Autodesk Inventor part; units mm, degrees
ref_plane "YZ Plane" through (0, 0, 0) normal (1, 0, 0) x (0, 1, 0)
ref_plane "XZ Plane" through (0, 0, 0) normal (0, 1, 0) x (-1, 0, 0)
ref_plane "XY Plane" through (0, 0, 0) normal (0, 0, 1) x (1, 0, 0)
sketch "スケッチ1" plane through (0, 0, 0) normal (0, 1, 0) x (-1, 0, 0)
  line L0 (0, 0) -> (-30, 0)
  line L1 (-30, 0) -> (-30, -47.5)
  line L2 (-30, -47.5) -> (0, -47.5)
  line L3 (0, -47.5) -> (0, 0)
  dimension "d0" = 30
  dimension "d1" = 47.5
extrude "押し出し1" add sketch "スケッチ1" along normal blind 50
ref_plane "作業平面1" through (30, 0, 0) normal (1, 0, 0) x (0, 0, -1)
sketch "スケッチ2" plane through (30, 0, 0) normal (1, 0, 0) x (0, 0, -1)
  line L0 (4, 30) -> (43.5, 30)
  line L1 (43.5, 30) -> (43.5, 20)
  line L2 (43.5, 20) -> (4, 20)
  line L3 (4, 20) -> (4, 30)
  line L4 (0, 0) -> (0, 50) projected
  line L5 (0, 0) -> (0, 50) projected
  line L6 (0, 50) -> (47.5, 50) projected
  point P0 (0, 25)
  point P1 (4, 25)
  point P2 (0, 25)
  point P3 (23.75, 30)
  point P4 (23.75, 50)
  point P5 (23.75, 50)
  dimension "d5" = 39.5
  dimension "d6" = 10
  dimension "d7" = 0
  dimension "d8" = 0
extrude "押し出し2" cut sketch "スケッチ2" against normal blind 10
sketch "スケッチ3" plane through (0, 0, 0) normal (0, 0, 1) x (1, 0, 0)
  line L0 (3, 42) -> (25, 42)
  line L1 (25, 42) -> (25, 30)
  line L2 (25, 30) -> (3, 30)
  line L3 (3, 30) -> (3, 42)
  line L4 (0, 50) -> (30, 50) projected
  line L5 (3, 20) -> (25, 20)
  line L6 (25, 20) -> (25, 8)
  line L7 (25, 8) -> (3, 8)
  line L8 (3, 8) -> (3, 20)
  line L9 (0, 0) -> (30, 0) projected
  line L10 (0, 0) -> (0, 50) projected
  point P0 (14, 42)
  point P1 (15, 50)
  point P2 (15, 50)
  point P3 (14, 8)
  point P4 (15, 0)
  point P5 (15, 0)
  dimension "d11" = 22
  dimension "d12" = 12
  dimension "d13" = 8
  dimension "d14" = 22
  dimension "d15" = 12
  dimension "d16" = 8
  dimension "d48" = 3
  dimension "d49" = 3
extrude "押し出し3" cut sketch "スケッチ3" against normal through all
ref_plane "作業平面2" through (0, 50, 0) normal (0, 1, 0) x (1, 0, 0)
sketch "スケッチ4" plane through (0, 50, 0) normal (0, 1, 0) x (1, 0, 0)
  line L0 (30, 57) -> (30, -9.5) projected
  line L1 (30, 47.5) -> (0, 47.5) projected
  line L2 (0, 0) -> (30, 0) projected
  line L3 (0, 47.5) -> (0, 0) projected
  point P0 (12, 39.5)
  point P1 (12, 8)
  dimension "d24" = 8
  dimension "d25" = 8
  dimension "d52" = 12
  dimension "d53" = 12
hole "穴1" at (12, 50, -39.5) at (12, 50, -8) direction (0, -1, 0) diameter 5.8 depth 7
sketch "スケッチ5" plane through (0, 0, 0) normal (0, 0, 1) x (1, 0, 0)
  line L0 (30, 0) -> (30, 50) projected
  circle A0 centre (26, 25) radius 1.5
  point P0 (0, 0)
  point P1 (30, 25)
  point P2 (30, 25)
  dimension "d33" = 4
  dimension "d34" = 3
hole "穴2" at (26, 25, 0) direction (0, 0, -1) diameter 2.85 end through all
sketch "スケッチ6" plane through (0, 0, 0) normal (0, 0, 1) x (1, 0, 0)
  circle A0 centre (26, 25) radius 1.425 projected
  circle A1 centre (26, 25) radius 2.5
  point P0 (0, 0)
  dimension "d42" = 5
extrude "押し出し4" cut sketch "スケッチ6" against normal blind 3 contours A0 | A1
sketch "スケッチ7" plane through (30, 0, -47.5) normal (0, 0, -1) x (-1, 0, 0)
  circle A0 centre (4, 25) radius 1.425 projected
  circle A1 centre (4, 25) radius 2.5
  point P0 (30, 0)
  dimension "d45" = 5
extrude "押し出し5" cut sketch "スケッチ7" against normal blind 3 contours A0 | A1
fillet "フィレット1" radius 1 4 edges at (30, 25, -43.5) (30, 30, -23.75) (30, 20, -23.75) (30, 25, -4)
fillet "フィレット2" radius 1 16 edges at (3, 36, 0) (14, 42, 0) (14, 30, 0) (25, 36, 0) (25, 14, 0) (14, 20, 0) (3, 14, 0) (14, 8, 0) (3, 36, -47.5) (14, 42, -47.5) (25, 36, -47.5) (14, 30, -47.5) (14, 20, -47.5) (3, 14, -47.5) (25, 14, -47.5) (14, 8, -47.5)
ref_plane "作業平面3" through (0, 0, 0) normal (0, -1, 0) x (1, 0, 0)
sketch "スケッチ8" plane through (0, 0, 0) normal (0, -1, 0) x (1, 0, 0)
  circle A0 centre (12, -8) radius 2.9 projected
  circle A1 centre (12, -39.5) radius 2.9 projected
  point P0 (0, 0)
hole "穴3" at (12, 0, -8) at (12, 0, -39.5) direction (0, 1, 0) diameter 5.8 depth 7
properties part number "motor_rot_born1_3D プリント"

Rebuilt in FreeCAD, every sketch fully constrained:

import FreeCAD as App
import Part
import Sketcher
from FreeCAD import Vector
Q = App.Units.Quantity


def edges_at(feature, points):
    """Names of the edges that pass closest to the given points."""
    edges = feature.Shape.Edges
    near = lambda p: min(range(len(edges)), key=lambda i: edges[i].distToShape(Part.Vertex(*p))[0])
    return sorted({f"Edge{near(p) + 1}" for p in points})


def add_polygon(sketch, points):
    """Adds a closed chain of lines whose ends are joined by coincident constraints."""
    first, n = sketch.GeometryCount, len(points)
    for a, b in zip(points, points[1:] + points[:1]):
        sketch.addGeometry(Part.LineSegment(App.Vector(*a, 0), App.Vector(*b, 0)), False)
    for i in range(n):
        sketch.addConstraint(Sketcher.Constraint("Coincident", first + i, 2, first + (i + 1) % n, 1))

doc = App.newDocument("Part")
params = doc.addObject("Spreadsheet::Sheet", "Params")
for row, (alias, value) in enumerate([
    ("sketch1_width", "30 mm"),
    ("sketch1_height", "47.5 mm"),
    ("pad1_length", "50 mm"),
    ("sketch2_width", "10 mm"),
    ("sketch2_height", "39.5 mm"),
    ("pocket1_length", "10 mm"),
    ("sketch3_width", "22 mm"),
    ("sketch3_height", "12 mm"),
    ("sketch4_diameter", "5.8 mm"),
    ("hole_diameter", "5.8 mm"),
    ("hole_depth", "7 mm"),
    ("sketch5_diameter", "2.85 mm"),
    ("hole2_diameter", "2.85 mm"),
    ("sketch6_diameter", "5 mm"),
    ("pocket3_length", "3 mm"),
    ("sketch7_diameter", "5 mm"),
    ("pocket4_length", "3 mm"),
    ("fillet_radius", "1 mm"),
    ("fillet2_radius", "1 mm"),
    ("sketch8_diameter", "5.8 mm"),
    ("hole3_diameter", "5.8 mm"),
    ("hole3_depth", "7 mm"),
], start=1):
    params.set(f"A{row}", alias)
    params.set(f"B{row}", "=" + value)
    params.setAlias(f"B{row}", alias)

body = doc.addObject("PartDesign::Body", "Body")

# Sketch on XZ plane
sketch1 = doc.addObject("Sketcher::SketchObject", "Sketch")
body.addObject(sketch1)
sketch1.AttachmentSupport = (doc.XZ_Plane, [""])
sketch1.MapMode = "FlatFace"
add_polygon(sketch1, [(0, -48), (0, 0), (30, 0), (30, -48)])  # lines 0-3
sketch1.addConstraint(Sketcher.Constraint("Vertical", 0))
sketch1.addConstraint(Sketcher.Constraint("Horizontal", 1))
sketch1.addConstraint(Sketcher.Constraint("Vertical", 2))
sketch1.addConstraint(Sketcher.Constraint("Horizontal", 3))
sketch1.addConstraint(Sketcher.Constraint("Coincident", 0, 2, -1, 1))
sketch1.addConstraint(Sketcher.Constraint("DistanceX", 1, 1, 1, 2, Q("30 mm")))
sketch1.addConstraint(Sketcher.Constraint("DistanceY", 0, 1, 0, 2, Q("47.5 mm")))
sketch1.setExpression("Constraints[9]", "Params.sketch1_width")
sketch1.setExpression("Constraints[10]", "Params.sketch1_height")
pad1 = doc.addObject("PartDesign::Pad", "Pad")
body.addObject(pad1)
pad1.Profile = sketch1
pad1.setExpression("Length", "Params.pad1_length")
pad1.Reversed = True

# Sketch on YZ plane
sketch2 = doc.addObject("Sketcher::SketchObject", "Sketch001")
body.addObject(sketch2)
sketch2.AttachmentSupport = (doc.YZ_Plane, [""])
sketch2.MapMode = "FlatFace"
sketch2.AttachmentOffset = App.Placement(Vector(0, 0, 30), App.Rotation())
add_polygon(sketch2, [(30, -44), (30, -4), (20, -4), (20, -44)])  # lines 0-3
sketch2.addConstraint(Sketcher.Constraint("Vertical", 0))
sketch2.addConstraint(Sketcher.Constraint("Horizontal", 1))
sketch2.addConstraint(Sketcher.Constraint("Vertical", 2))
sketch2.addConstraint(Sketcher.Constraint("Horizontal", 3))
sketch2.addConstraint(Sketcher.Constraint("DistanceX", 1, 2, 1, 1, Q("10 mm")))
sketch2.addConstraint(Sketcher.Constraint("DistanceY", 0, 1, 0, 2, Q("39.5 mm")))
sketch2.addConstraint(Sketcher.Constraint("DistanceX", -1, 1, 0, 2, Q("30 mm")))
sketch2.addConstraint(Sketcher.Constraint("DistanceY", 0, 2, -1, 1, Q("4 mm")))
sketch2.setExpression("Constraints[8]", "Params.sketch2_width")
sketch2.setExpression("Constraints[9]", "Params.sketch2_height")
pocket1 = doc.addObject("PartDesign::Pocket", "Pocket")
body.addObject(pocket1)
pocket1.Profile = sketch2
pocket1.setExpression("Length", "Params.pocket1_length")

# Sketch on XY plane
sketch3 = doc.addObject("Sketcher::SketchObject", "Sketch002")
body.addObject(sketch3)
sketch3.AttachmentSupport = (doc.XY_Plane, [""])
sketch3.MapMode = "FlatFace"
add_polygon(sketch3, [(25, 42), (3, 42), (3, 30), (25, 30)])  # lines 0-3
add_polygon(sketch3, [(25, 20), (3, 20), (3, 8), (25, 8)])  # lines 4-7
sketch3.addConstraint(Sketcher.Constraint("Horizontal", 0))
sketch3.addConstraint(Sketcher.Constraint("Vertical", 1))
sketch3.addConstraint(Sketcher.Constraint("Horizontal", 2))
sketch3.addConstraint(Sketcher.Constraint("Vertical", 3))
sketch3.addConstraint(Sketcher.Constraint("Horizontal", 4))
sketch3.addConstraint(Sketcher.Constraint("Vertical", 5))
sketch3.addConstraint(Sketcher.Constraint("Horizontal", 6))
sketch3.addConstraint(Sketcher.Constraint("Vertical", 7))
sketch3.addConstraint(Sketcher.Constraint("Vertical", 1, 2, 4, 2))
sketch3.addConstraint(Sketcher.Constraint("Vertical", 3, 2, 6, 2))
sketch3.addConstraint(Sketcher.Constraint("Equal", 3, 5))
sketch3.addConstraint(Sketcher.Constraint("DistanceX", 0, 2, 0, 1, Q("22 mm")))
sketch3.addConstraint(Sketcher.Constraint("DistanceY", 1, 2, 1, 1, Q("12 mm")))
sketch3.addConstraint(Sketcher.Constraint("DistanceX", -1, 1, 0, 2, Q("3 mm")))
sketch3.addConstraint(Sketcher.Constraint("DistanceY", -1, 1, 5, 2, Q("8 mm")))
sketch3.addConstraint(Sketcher.Constraint("DistanceY", 4, 2, 0, 2, Q("22 mm")))
sketch3.setExpression("Constraints[19]", "Params.sketch3_width")
sketch3.setExpression("Constraints[20]", "Params.sketch3_height")
pocket2 = doc.addObject("PartDesign::Pocket", "Pocket001")
body.addObject(pocket2)
pocket2.Profile = sketch3
pocket2.Type = "ThroughAll"

# Sketch on XZ plane
sketch4 = doc.addObject("Sketcher::SketchObject", "Sketch003")
body.addObject(sketch4)
sketch4.AttachmentSupport = (doc.XZ_Plane, [""])
sketch4.MapMode = "FlatFace"
sketch4.AttachmentOffset = App.Placement(Vector(0, 0, -50), App.Rotation())
sketch4.addGeometry(Part.Circle(Vector(12, -39.5, 0), Vector(0, 0, 1), 2.9), False)
sketch4.addGeometry(Part.Circle(Vector(12, -8, 0), Vector(0, 0, 1), 2.9), False)
sketch4.addConstraint(Sketcher.Constraint("Equal", 0, 1))
sketch4.addConstraint(Sketcher.Constraint("Vertical", 0, 3, 1, 3))
sketch4.addConstraint(Sketcher.Constraint("Diameter", 0, Q("5.8 mm")))
sketch4.addConstraint(Sketcher.Constraint("DistanceX", -1, 1, 0, 3, Q("12 mm")))
sketch4.addConstraint(Sketcher.Constraint("DistanceY", 1, 3, -1, 1, Q("8 mm")))
sketch4.addConstraint(Sketcher.Constraint("DistanceY", 0, 3, -1, 1, Q("39.5 mm")))
sketch4.setExpression("Constraints[2]", "Params.sketch4_diameter")
doc.recompute()
hole = doc.addObject("PartDesign::Hole", "Hole")
body.addObject(hole)
hole.Profile = sketch4
hole.ThreadType = "None"
hole.setExpression("Diameter", "Params.hole_diameter")
hole.DepthType = "Dimension"
hole.setExpression("Depth", "Params.hole_depth")
hole.DrillPoint = "Flat"
hole.Reversed = True

# Sketch on XY plane
sketch5 = doc.addObject("Sketcher::SketchObject", "Sketch004")
body.addObject(sketch5)
sketch5.AttachmentSupport = (doc.XY_Plane, [""])
sketch5.MapMode = "FlatFace"
sketch5.addGeometry(Part.Circle(Vector(26, 25, 0), Vector(0, 0, 1), 1.4), False)
sketch5.addConstraint(Sketcher.Constraint("Diameter", 0, Q("2.85 mm")))
sketch5.addConstraint(Sketcher.Constraint("DistanceX", -1, 1, 0, 3, Q("26 mm")))
sketch5.addConstraint(Sketcher.Constraint("DistanceY", -1, 1, 0, 3, Q("25 mm")))
sketch5.setExpression("Constraints[0]", "Params.sketch5_diameter")
doc.recompute()
hole2 = doc.addObject("PartDesign::Hole", "Hole001")
body.addObject(hole2)
hole2.Profile = sketch5
hole2.ThreadType = "None"
hole2.setExpression("Diameter", "Params.hole2_diameter")
hole2.DepthType = "ThroughAll"

# Sketch on XY plane
sketch6 = doc.addObject("Sketcher::SketchObject", "Sketch005")
body.addObject(sketch6)
sketch6.AttachmentSupport = (doc.XY_Plane, [""])
sketch6.MapMode = "FlatFace"
sketch6.addGeometry(Part.Circle(Vector(26, 25, 0), Vector(0, 0, 1), 2.5), False)
sketch6.addConstraint(Sketcher.Constraint("Diameter", 0, Q("5 mm")))
sketch6.addConstraint(Sketcher.Constraint("DistanceX", -1, 1, 0, 3, Q("26 mm")))
sketch6.addConstraint(Sketcher.Constraint("DistanceY", -1, 1, 0, 3, Q("25 mm")))
sketch6.setExpression("Constraints[0]", "Params.sketch6_diameter")
pocket3 = doc.addObject("PartDesign::Pocket", "Pocket002")
body.addObject(pocket3)
pocket3.Profile = sketch6
pocket3.setExpression("Length", "Params.pocket3_length")

# Sketch on XY plane
sketch7 = doc.addObject("Sketcher::SketchObject", "Sketch006")
body.addObject(sketch7)
sketch7.AttachmentSupport = (doc.XY_Plane, [""])
sketch7.MapMode = "FlatFace"
sketch7.AttachmentOffset = App.Placement(Vector(0, 0, -47.5), App.Rotation())
sketch7.addGeometry(Part.Circle(Vector(26, 25, 0), Vector(0, 0, 1), 2.5), False)
sketch7.addConstraint(Sketcher.Constraint("Diameter", 0, Q("5 mm")))
sketch7.addConstraint(Sketcher.Constraint("DistanceX", -1, 1, 0, 3, Q("26 mm")))
sketch7.addConstraint(Sketcher.Constraint("DistanceY", -1, 1, 0, 3, Q("25 mm")))
sketch7.setExpression("Constraints[0]", "Params.sketch7_diameter")
pocket4 = doc.addObject("PartDesign::Pocket", "Pocket003")
body.addObject(pocket4)
pocket4.Profile = sketch7
pocket4.setExpression("Length", "Params.pocket4_length")
pocket4.Reversed = True
doc.recompute()

fillet = doc.addObject("PartDesign::Fillet", "Fillet")
body.addObject(fillet)
fillet.Base = (pocket4, edges_at(pocket4, [
    (30, 25, -43.5),
    (30, 30, -23.75),
    (30, 20, -23.75),
    (30, 25, -4),
]))
fillet.setExpression("Radius", "Params.fillet_radius")
doc.recompute()

fillet2 = doc.addObject("PartDesign::Fillet", "Fillet001")
body.addObject(fillet2)
fillet2.Base = (fillet, edges_at(fillet, [
    (3, 36, 0),
    (14, 42, 0),
    (14, 30, 0),
    (25, 36, 0),
    (25, 14, 0),
    (14, 20, 0),
    (3, 14, 0),
    (14, 8, 0),
    (3, 36, -47.5),
    (14, 42, -47.5),
    (25, 36, -47.5),
    (14, 30, -47.5),
    (14, 20, -47.5),
    (3, 14, -47.5),
    (25, 14, -47.5),
    (14, 8, -47.5),
]))
fillet2.setExpression("Radius", "Params.fillet2_radius")

# Sketch on XZ plane
sketch8 = doc.addObject("Sketcher::SketchObject", "Sketch007")
body.addObject(sketch8)
sketch8.AttachmentSupport = (doc.XZ_Plane, [""])
sketch8.MapMode = "FlatFace"
sketch8.addGeometry(Part.Circle(Vector(12, -8, 0), Vector(0, 0, 1), 2.9), False)
sketch8.addGeometry(Part.Circle(Vector(12, -39.5, 0), Vector(0, 0, 1), 2.9), False)
sketch8.addConstraint(Sketcher.Constraint("Equal", 0, 1))
sketch8.addConstraint(Sketcher.Constraint("Vertical", 0, 3, 1, 3))
sketch8.addConstraint(Sketcher.Constraint("Diameter", 0, Q("5.8 mm")))
sketch8.addConstraint(Sketcher.Constraint("DistanceX", -1, 1, 0, 3, Q("12 mm")))
sketch8.addConstraint(Sketcher.Constraint("DistanceY", 0, 3, -1, 1, Q("8 mm")))
sketch8.addConstraint(Sketcher.Constraint("DistanceY", 1, 3, -1, 1, Q("39.5 mm")))
sketch8.setExpression("Constraints[2]", "Params.sketch8_diameter")
doc.recompute()
hole3 = doc.addObject("PartDesign::Hole", "Hole002")
body.addObject(hole3)
hole3.Profile = sketch8
hole3.ThreadType = "None"
hole3.setExpression("Diameter", "Params.hole3_diameter")
hole3.DepthType = "Dimension"
hole3.setExpression("Depth", "Params.hole3_depth")
hole3.DrillPoint = "Flat"

doc.recompute()
